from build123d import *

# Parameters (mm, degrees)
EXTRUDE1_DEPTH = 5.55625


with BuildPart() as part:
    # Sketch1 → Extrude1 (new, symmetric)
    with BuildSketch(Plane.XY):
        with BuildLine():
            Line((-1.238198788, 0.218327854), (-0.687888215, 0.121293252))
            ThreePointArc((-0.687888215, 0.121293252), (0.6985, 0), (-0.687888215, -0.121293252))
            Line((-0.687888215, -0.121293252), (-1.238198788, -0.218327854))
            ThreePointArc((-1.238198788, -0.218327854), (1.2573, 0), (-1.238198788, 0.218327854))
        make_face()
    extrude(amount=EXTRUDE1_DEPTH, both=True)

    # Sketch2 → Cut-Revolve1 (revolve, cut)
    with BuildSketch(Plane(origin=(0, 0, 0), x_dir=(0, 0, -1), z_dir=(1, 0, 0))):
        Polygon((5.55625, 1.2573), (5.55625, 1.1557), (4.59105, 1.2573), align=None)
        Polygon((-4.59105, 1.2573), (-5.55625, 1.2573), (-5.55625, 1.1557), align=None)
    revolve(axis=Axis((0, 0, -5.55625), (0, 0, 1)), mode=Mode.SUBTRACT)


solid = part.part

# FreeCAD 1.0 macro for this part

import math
import FreeCAD as App
import Part
import Sketcher
from FreeCAD import Vector
Q = App.Units.Quantity

doc = App.newDocument("Part")
body = doc.addObject("PartDesign::Body", "Body")

sketch1 = body.newObject("Sketcher::SketchObject", "Sketch")
sketch1.AttachmentSupport = (doc.getObject("XY_Plane"), [""])
sketch1.MapMode = "FlatFace"
sketch1.addGeometry([
    Part.LineSegment(Vector(-1.238199, 0.218328, 0), Vector(-0.687888, 0.121293, 0)),
    Part.ArcOfCircle(Part.Circle(Vector(0, 0, 0), Vector(0, 0, 1), 0.6985), math.radians(-170), math.radians(170)),
    Part.LineSegment(Vector(-0.687888, -0.121293, 0), Vector(-1.238199, -0.218328, 0)),
    Part.ArcOfCircle(Part.Circle(Vector(0, 0, 0), Vector(0, 0, 1), 1.2573), math.radians(-170), math.radians(170)),
], False)
sketch1.addConstraint([
    Sketcher.Constraint("Coincident", 0, 2, 1, 2),
    Sketcher.Constraint("Coincident", 1, 1, 2, 1),
    Sketcher.Constraint("Coincident", 2, 2, 3, 1),
    Sketcher.Constraint("Coincident", 3, 2, 0, 1),
    Sketcher.Constraint("Coincident", 1, 3, -1, 1),
    Sketcher.Constraint("Coincident", 3, 3, -1, 1),
    Sketcher.Constraint("Vertical", 0, 2, 1, 1),
    Sketcher.Constraint("Vertical", 2, 2, 3, 2),
    Sketcher.Constraint("Angle", 0, Q("-10 deg")),
    Sketcher.Constraint("Radius", 1, Q("0.0275 in")),
    Sketcher.Constraint("Radius", 3, Q("0.0495 in")),
    Sketcher.Constraint("DistanceX", 2, 2, -1, 1, 1.238199),
])
pad1 = body.newObject("PartDesign::Pad", "Pad")
pad1.Profile = sketch1
pad1.Length = Q("0.4375 in")
pad1.Midplane = True

sketch2 = body.newObject("Sketcher::SketchObject", "Sketch001")
sketch2.AttachmentSupport = (doc.getObject("YZ_Plane"), [""])
sketch2.MapMode = "FlatFace"
sketch2.addGeometry([
    Part.LineSegment(Vector(1.1557, -5.55625, 0), Vector(1.2573, -5.55625, 0)),
    Part.LineSegment(Vector(1.2573, -5.55625, 0), Vector(1.2573, -4.59105, 0)),
    Part.LineSegment(Vector(1.2573, -4.59105, 0), Vector(1.1557, -5.55625, 0)),
    Part.LineSegment(Vector(1.2573, 4.59105, 0), Vector(1.2573, 5.55625, 0)),
    Part.LineSegment(Vector(1.2573, 5.55625, 0), Vector(1.1557, 5.55625, 0)),
    Part.LineSegment(Vector(1.1557, 5.55625, 0), Vector(1.2573, 4.59105, 0)),
], False)
sketch2.addConstraint([
    Sketcher.Constraint("Coincident", 0, 2, 1, 1),
    Sketcher.Constraint("Coincident", 1, 2, 2, 1),
    Sketcher.Constraint("Coincident", 2, 2, 0, 1),
    Sketcher.Constraint("Coincident", 3, 2, 4, 1),
    Sketcher.Constraint("Coincident", 4, 2, 5, 1),
    Sketcher.Constraint("Coincident", 5, 2, 3, 1),
    Sketcher.Constraint("Horizontal", 0),
    Sketcher.Constraint("Vertical", 1),
    Sketcher.Constraint("Vertical", 3),
    Sketcher.Constraint("Horizontal", 4),
    Sketcher.Constraint("Symmetric", 0, 2, 3, 2, -1),
    Sketcher.Constraint("Vertical", 2, 2, 4, 2),
    Sketcher.Constraint("Equal", 1, 3),
    Sketcher.Constraint("DistanceX", 0, 1, 0, 2, Q("0.004 in")),
    Sketcher.Constraint("DistanceY", 1, 1, 1, 2, Q("0.038 in")),
    Sketcher.Constraint("DistanceY", 0, 2, -1, 1, Q("0.21875 in")),
    Sketcher.Constraint("DistanceX", -1, 1, 0, 2, Q("0.0495 in")),
])
groove = body.newObject("PartDesign::Groove", "Groove")
groove.Profile = sketch2
groove.ReferenceAxis = (sketch2, ["V_Axis"])
groove.Angle = 360

doc.recompute()
